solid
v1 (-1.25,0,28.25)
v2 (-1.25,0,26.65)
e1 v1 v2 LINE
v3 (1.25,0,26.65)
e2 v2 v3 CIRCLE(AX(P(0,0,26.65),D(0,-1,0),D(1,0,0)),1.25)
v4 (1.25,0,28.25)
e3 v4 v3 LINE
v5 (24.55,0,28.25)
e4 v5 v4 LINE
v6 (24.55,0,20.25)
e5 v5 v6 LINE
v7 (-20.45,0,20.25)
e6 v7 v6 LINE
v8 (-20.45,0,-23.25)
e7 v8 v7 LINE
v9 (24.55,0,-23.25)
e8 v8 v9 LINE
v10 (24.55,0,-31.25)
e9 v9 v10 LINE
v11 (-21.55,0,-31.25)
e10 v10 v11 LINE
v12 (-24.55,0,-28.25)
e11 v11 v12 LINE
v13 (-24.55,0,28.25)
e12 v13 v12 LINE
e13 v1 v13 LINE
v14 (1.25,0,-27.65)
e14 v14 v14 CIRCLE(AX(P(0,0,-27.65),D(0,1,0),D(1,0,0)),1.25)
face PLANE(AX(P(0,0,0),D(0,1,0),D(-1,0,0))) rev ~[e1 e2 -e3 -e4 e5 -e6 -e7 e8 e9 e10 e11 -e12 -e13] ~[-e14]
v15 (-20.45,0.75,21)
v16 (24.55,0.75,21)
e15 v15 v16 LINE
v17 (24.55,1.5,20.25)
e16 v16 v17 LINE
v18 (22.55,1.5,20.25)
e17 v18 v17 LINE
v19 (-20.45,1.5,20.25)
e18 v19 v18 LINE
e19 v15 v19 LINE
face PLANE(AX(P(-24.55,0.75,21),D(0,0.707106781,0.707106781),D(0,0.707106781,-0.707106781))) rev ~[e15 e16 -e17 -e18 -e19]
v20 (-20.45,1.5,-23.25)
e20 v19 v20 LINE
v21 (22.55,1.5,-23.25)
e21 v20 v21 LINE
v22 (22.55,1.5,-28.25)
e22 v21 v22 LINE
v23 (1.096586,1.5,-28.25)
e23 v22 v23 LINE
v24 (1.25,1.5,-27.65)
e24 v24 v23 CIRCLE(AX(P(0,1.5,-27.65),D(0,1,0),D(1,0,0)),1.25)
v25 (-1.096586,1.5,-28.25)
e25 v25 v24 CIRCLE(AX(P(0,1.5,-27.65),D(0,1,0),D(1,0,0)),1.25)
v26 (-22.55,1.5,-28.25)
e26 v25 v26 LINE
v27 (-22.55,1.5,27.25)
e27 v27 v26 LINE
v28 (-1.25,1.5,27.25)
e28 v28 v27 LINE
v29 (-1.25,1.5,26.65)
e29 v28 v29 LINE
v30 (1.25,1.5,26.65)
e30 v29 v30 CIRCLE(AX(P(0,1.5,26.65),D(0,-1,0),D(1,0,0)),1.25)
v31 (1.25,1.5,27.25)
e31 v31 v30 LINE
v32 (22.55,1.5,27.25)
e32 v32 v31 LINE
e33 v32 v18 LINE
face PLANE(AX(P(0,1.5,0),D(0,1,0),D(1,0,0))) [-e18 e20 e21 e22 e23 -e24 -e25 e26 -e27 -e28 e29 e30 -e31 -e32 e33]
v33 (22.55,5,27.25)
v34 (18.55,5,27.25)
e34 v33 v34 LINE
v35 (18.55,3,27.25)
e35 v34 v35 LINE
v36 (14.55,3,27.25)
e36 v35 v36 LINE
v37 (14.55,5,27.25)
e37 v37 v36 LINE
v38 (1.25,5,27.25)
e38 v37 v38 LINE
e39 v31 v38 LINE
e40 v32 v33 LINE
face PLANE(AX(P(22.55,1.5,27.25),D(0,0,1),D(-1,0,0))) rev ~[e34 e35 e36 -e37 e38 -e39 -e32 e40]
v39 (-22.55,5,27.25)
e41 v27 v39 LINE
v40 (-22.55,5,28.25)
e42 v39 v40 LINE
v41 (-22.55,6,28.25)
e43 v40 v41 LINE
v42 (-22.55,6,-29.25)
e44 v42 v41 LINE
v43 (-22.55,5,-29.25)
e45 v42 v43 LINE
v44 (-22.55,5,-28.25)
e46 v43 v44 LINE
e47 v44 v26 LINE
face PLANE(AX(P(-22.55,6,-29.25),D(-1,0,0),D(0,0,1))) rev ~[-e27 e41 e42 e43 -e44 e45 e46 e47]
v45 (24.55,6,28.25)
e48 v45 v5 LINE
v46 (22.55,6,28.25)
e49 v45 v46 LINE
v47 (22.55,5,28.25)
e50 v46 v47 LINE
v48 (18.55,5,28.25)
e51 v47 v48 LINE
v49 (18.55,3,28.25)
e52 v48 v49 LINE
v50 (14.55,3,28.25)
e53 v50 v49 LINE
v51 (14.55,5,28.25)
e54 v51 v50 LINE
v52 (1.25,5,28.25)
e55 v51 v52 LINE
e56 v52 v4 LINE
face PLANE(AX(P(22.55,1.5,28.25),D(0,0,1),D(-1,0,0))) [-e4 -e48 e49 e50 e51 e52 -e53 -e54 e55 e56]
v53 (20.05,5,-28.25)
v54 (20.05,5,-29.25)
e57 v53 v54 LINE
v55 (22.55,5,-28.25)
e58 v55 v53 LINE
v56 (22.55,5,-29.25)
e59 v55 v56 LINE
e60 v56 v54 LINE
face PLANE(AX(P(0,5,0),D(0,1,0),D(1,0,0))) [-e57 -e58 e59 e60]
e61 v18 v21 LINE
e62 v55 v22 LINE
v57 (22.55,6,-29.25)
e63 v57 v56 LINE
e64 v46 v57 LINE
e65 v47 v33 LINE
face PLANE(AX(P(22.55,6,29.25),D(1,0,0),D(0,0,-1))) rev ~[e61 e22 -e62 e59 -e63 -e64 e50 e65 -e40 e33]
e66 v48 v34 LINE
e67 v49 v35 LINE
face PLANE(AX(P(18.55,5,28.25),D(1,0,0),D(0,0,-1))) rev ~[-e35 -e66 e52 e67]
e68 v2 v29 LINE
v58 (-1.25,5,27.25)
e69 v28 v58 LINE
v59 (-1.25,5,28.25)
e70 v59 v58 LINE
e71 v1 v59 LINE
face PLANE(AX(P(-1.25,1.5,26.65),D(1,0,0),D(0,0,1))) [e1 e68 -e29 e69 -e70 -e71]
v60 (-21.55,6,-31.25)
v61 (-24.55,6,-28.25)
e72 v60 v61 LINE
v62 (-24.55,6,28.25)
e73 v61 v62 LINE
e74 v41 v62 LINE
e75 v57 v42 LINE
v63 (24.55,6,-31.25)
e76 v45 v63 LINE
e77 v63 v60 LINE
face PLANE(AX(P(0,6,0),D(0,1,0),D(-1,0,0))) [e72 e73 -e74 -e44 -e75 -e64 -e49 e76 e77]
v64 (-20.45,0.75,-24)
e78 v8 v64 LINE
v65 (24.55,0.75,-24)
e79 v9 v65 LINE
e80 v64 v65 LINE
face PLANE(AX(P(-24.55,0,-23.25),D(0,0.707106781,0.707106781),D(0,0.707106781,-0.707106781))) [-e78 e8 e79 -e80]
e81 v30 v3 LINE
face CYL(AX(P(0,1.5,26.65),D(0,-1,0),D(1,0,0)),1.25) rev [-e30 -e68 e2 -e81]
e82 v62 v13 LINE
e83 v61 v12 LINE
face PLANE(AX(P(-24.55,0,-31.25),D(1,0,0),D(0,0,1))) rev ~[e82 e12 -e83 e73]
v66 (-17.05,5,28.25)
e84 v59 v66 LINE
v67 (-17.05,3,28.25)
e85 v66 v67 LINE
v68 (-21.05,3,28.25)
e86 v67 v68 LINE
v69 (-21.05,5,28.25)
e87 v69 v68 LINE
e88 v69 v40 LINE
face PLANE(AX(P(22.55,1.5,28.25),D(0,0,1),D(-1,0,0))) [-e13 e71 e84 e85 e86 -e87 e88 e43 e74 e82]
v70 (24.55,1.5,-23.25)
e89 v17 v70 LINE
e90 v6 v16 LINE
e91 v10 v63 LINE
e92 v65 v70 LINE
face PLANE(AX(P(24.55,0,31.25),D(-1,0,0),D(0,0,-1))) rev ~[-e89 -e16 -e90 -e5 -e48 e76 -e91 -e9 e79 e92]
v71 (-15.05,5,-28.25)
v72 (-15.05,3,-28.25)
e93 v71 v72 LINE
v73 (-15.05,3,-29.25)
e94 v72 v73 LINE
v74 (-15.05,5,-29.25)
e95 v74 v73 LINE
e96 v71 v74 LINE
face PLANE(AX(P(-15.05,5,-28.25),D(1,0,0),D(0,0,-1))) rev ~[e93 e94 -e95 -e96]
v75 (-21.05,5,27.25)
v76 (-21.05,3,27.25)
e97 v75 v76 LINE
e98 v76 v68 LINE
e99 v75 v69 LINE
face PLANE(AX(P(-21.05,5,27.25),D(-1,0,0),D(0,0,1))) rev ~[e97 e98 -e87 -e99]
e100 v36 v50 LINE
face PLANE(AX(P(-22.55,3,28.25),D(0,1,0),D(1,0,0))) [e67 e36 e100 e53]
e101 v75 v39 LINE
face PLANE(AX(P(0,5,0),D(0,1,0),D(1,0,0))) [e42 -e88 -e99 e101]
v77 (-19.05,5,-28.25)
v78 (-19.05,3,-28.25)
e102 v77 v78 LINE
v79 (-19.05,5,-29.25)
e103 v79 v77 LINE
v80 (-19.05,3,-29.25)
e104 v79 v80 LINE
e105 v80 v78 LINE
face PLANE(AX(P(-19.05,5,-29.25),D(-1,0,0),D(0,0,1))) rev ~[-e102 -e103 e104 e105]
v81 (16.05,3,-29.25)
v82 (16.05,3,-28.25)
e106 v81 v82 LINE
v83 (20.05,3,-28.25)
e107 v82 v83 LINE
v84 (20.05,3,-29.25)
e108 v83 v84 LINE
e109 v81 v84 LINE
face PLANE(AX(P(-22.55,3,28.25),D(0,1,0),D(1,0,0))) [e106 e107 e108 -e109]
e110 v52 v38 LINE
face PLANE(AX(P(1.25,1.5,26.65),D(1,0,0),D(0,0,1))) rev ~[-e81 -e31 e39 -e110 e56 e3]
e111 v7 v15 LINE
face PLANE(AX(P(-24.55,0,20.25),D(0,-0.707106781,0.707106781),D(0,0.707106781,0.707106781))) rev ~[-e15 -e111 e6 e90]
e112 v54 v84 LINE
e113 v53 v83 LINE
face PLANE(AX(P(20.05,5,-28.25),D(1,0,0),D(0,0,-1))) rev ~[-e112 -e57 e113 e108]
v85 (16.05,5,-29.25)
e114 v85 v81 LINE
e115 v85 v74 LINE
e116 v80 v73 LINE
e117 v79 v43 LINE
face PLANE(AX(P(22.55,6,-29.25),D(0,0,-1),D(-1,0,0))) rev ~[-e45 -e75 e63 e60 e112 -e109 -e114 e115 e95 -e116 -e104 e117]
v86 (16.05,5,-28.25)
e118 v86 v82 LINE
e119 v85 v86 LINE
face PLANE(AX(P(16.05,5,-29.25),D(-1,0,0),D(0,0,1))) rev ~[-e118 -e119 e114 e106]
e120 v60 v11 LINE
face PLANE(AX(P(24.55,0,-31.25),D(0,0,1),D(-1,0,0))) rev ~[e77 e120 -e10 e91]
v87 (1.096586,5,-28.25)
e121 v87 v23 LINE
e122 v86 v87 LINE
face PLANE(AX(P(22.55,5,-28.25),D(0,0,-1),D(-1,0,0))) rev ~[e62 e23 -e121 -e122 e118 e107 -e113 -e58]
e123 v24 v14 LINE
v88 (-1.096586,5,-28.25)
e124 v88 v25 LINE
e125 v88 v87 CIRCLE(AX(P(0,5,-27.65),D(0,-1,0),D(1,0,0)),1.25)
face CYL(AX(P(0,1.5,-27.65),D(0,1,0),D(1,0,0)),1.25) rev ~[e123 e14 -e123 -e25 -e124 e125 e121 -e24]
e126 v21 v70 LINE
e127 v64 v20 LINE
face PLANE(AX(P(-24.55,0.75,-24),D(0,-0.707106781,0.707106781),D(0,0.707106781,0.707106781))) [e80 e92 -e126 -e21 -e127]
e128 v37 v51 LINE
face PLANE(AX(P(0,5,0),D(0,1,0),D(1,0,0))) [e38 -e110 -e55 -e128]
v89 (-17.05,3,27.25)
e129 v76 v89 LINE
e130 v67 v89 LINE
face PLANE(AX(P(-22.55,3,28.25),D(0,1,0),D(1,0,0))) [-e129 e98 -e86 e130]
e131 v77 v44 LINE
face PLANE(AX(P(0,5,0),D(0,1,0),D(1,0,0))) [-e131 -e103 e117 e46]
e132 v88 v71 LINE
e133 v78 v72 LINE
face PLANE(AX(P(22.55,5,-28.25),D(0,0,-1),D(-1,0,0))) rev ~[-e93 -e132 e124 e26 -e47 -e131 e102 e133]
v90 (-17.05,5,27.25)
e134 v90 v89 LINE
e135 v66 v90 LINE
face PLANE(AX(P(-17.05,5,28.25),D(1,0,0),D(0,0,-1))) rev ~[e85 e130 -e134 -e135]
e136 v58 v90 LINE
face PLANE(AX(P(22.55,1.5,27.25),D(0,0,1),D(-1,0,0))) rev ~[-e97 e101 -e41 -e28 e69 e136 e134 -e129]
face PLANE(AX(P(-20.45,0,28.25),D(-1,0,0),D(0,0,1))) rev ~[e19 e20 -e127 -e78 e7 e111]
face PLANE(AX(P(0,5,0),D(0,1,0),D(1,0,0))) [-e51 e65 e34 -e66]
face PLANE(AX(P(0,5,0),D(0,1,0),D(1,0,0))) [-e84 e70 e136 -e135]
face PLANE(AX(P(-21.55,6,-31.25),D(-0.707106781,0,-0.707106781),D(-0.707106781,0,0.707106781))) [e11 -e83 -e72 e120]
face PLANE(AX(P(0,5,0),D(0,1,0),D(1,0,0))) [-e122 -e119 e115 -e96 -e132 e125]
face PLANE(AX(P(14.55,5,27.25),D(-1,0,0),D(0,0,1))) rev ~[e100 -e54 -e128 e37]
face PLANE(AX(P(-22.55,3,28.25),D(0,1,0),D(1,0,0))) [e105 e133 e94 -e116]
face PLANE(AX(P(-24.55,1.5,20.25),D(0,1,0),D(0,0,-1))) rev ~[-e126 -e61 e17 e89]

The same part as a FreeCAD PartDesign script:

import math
import FreeCAD as App
import Part
import Sketcher

V = App.Vector
Q = App.Units.Quantity

doc = App.newDocument("Part")
body = doc.addObject("PartDesign::Body", "Body")

# Sketch on XZ plane
sketch1 = body.newObject("Sketcher::SketchObject", "Sketch")
sketch1.AttachmentSupport = (doc.getObject("XZ_Plane"), [""])
sketch1.MapMode = "FlatFace"
sketch1.addGeometry(Part.LineSegment(V(25, 31, 0), V(25, -31, 0)), False)
sketch1.addGeometry(Part.LineSegment(V(25, -31, 0), V(-25, -31, 0)), False)
sketch1.addGeometry(Part.LineSegment(V(-25, -31, 0), V(-25, 31, 0)), False)
sketch1.addGeometry(Part.LineSegment(V(-25, 31, 0), V(25, 31, 0)), False)
sketch1.addConstraint(Sketcher.Constraint("Coincident", 0, 2, 1, 1))
sketch1.addConstraint(Sketcher.Constraint("Coincident", 1, 2, 2, 1))
sketch1.addConstraint(Sketcher.Constraint("Coincident", 2, 2, 3, 1))
sketch1.addConstraint(Sketcher.Constraint("Coincident", 3, 2, 0, 1))
sketch1.addConstraint(Sketcher.Constraint("Vertical", 0))
sketch1.addConstraint(Sketcher.Constraint("Horizontal", 1))
sketch1.addConstraint(Sketcher.Constraint("Vertical", 2))
sketch1.addConstraint(Sketcher.Constraint("Horizontal", 3))
sketch1.addConstraint(Sketcher.Constraint("Symmetric", 0, 2, 2, 2, -1, 1))
sketch1.addConstraint(Sketcher.Constraint("DistanceX", 1, 2, 1, 1, Q("49.1 mm")))
sketch1.addConstraint(Sketcher.Constraint("DistanceY", 0, 2, 0, 1, Q("62.5 mm")))
pad1 = body.newObject("PartDesign::Pad", "Pad")
pad1.Profile = sketch1
pad1.Length = 6
pad1.Reversed = True

# Sketch on XZ plane
sketch2 = body.newObject("Sketcher::SketchObject", "Sketch001")
sketch2.AttachmentSupport = (doc.getObject("XZ_Plane"), [""])
sketch2.MapMode = "FlatFace"
sketch2.AttachmentOffset = App.Placement(V(0, 0, -6), App.Rotation())
sketch2.addGeometry(Part.LineSegment(V(23, 29, 0), V(23, -29, 0)), False)
sketch2.addGeometry(Part.LineSegment(V(23, -29, 0), V(-23, -29, 0)), False)
sketch2.addGeometry(Part.LineSegment(V(-23, -29, 0), V(-23, 29, 0)), False)
sketch2.addGeometry(Part.LineSegment(V(-23, 29, 0), V(23, 29, 0)), False)
sketch2.addConstraint(Sketcher.Constraint("Coincident", 0, 2, 1, 1))
sketch2.addConstraint(Sketcher.Constraint("Coincident", 1, 2, 2, 1))
sketch2.addConstraint(Sketcher.Constraint("Coincident", 2, 2, 3, 1))
sketch2.addConstraint(Sketcher.Constraint("Coincident", 3, 2, 0, 1))
sketch2.addConstraint(Sketcher.Constraint("Vertical", 0))
sketch2.addConstraint(Sketcher.Constraint("Horizontal", 1))
sketch2.addConstraint(Sketcher.Constraint("Vertical", 2))
sketch2.addConstraint(Sketcher.Constraint("Horizontal", 3))
sketch2.addConstraint(Sketcher.Constraint("Symmetric", 0, 2, 2, 2, -1, 1))
sketch2.addConstraint(Sketcher.Constraint("DistanceX", 1, 2, 1, 1, Q("45.1 mm")))
sketch2.addConstraint(Sketcher.Constraint("DistanceY", 0, 2, 0, 1, Q("58.5 mm")))
pocket1 = body.newObject("PartDesign::Pocket", "Pocket")
pocket1.Profile = sketch2
pocket1.Length = 1
pocket1.Reversed = True

# Sketch on XZ plane
sketch3 = body.newObject("Sketcher::SketchObject", "Sketch002")
sketch3.AttachmentSupport = (doc.getObject("XZ_Plane"), [""])
sketch3.MapMode = "FlatFace"
sketch3.AttachmentOffset = App.Placement(V(0, 0, -5), App.Rotation())
sketch3.addGeometry(Part.LineSegment(V(23, 28, 0), V(23, -28, 0)), False)
sketch3.addGeometry(Part.LineSegment(V(23, -28, 0), V(-23, -28, 0)), False)
sketch3.addGeometry(Part.LineSegment(V(-23, -28, 0), V(-23, 28, 0)), False)
sketch3.addGeometry(Part.LineSegment(V(-23, 28, 0), V(23, 28, 0)), False)
sketch3.addConstraint(Sketcher.Constraint("Coincident", 0, 2, 1, 1))
sketch3.addConstraint(Sketcher.Constraint("Coincident", 1, 2, 2, 1))
sketch3.addConstraint(Sketcher.Constraint("Coincident", 2, 2, 3, 1))
sketch3.addConstraint(Sketcher.Constraint("Coincident", 3, 2, 0, 1))
sketch3.addConstraint(Sketcher.Constraint("Vertical", 0))
sketch3.addConstraint(Sketcher.Constraint("Horizontal", 1))
sketch3.addConstraint(Sketcher.Constraint("Vertical", 2))
sketch3.addConstraint(Sketcher.Constraint("Horizontal", 3))
sketch3.addConstraint(Sketcher.Constraint("Symmetric", 0, 2, 2, 2, -1, 1))
sketch3.addConstraint(Sketcher.Constraint("DistanceX", 1, 2, 1, 1, Q("45.1 mm")))
sketch3.addConstraint(Sketcher.Constraint("DistanceY", 0, 2, 0, 1, Q("56.5 mm")))
pocket2 = body.newObject("PartDesign::Pocket", "Pocket001")
pocket2.Profile = sketch3
pocket2.Length = 3.5
pocket2.Reversed = True

# Sketch on XZ plane
sketch4 = body.newObject("Sketcher::SketchObject", "Sketch003")
sketch4.AttachmentSupport = (doc.getObject("XZ_Plane"), [""])
sketch4.MapMode = "FlatFace"
sketch4.AttachmentOffset = App.Placement(V(0, 0, -6), App.Rotation())
sketch4.addGeometry(Part.LineSegment(V(24.6, 31.2, 0), V(24.6, 28.2, 0)), False)
sketch4.addGeometry(Part.LineSegment(V(24.6, 28.2, 0), V(-24.6, 28.2, 0)), False)
sketch4.addGeometry(Part.LineSegment(V(-24.6, 28.2, 0), V(-24.6, 31.2, 0)), False)
sketch4.addGeometry(Part.LineSegment(V(-24.6, 31.2, 0), V(24.6, 31.2, 0)), False)
sketch4.addConstraint(Sketcher.Constraint("Coincident", 0, 2, 1, 1))
sketch4.addConstraint(Sketcher.Constraint("Coincident", 1, 2, 2, 1))
sketch4.addConstraint(Sketcher.Constraint("Coincident", 2, 2, 3, 1))
sketch4.addConstraint(Sketcher.Constraint("Coincident", 3, 2, 0, 1))
sketch4.addConstraint(Sketcher.Constraint("Vertical", 0))
sketch4.addConstraint(Sketcher.Constraint("Horizontal", 1))
sketch4.addConstraint(Sketcher.Constraint("Vertical", 2))
sketch4.addConstraint(Sketcher.Constraint("Horizontal", 3))
sketch4.addConstraint(Sketcher.Constraint("DistanceY", 0, 2, 0, 1, Q("3 mm")))
sketch4.addConstraint(Sketcher.Constraint("DistanceX", 1, 2, 1, 1, Q("49.1 mm")))
sketch4.addConstraint(Sketcher.Constraint("DistanceX", -1, 1, 0, 2, Q("24.55 mm")))
sketch4.addConstraint(Sketcher.Constraint("DistanceY", -1, 1, 0, 2, Q("28.25 mm")))
pocket3 = body.newObject("PartDesign::Pocket", "Pocket002")
pocket3.Profile = sketch4
pocket3.Type = "ThroughAll"
pocket3.Reversed = True

# Sketch on XZ plane
sketch5 = body.newObject("Sketcher::SketchObject", "Sketch004")
sketch5.AttachmentSupport = (doc.getObject("XZ_Plane"), [""])
sketch5.MapMode = "FlatFace"
sketch5.AttachmentOffset = App.Placement(V(0, 0, -1.5), App.Rotation())
sketch5.addGeometry(Part.LineSegment(V(-22.6, 28.2, 0), V(22.6, 28.2, 0)), False)
sketch5.addGeometry(Part.LineSegment(V(22.6, 28.2, 0), V(22.6, 27.2, 0)), False)
sketch5.addGeometry(Part.LineSegment(V(22.6, 27.2, 0), V(-22.6, 27.2, 0)), False)
sketch5.addGeometry(Part.LineSegment(V(-22.6, 27.2, 0), V(-22.6, 28.2, 0)), False)
sketch5.addConstraint(Sketcher.Constraint("Coincident", 0, 2, 1, 1))
sketch5.addConstraint(Sketcher.Constraint("Coincident", 1, 2, 2, 1))
sketch5.addConstraint(Sketcher.Constraint("Coincident", 2, 2, 3, 1))
sketch5.addConstraint(Sketcher.Constraint("Coincident", 3, 2, 0, 1))
sketch5.addConstraint(Sketcher.Constraint("Horizontal", 0))
sketch5.addConstraint(Sketcher.Constraint("Vertical", 1))
sketch5.addConstraint(Sketcher.Constraint("Horizontal", 2))
sketch5.addConstraint(Sketcher.Constraint("Vertical", 3))
sketch5.addConstraint(Sketcher.Constraint("DistanceY", 1, 2, 1, 1, Q("1 mm")))
sketch5.addConstraint(Sketcher.Constraint("DistanceX", 0, 1, 0, 2, Q("45.1 mm")))
sketch5.addConstraint(Sketcher.Constraint("DistanceX", -1, 1, 0, 2, Q("22.55 mm")))
sketch5.addConstraint(Sketcher.Constraint("DistanceY", -1, 1, 0, 2, Q("28.25 mm")))
pad2 = body.newObject("PartDesign::Pad", "Pad001")
pad2.Profile = sketch5
pad2.Length = 3.5
pad2.Reversed = True

# Sketch on XZ plane
sketch6 = body.newObject("Sketcher::SketchObject", "Sketch005")
sketch6.AttachmentSupport = (doc.getObject("XZ_Plane"), [""])
sketch6.MapMode = "FlatFace"
sketch6.AttachmentOffset = App.Placement(V(0, 0, -1.5), App.Rotation())
sketch6.addGeometry(Part.Circle(V(0, -27.6, 0), V(0, 0, 1), 1.2), False)
sketch6.addGeometry(Part.ArcOfCircle(Part.Circle(V(0, 26.6, 0), V(0, 0, 1), 1.2), math.radians(180), math.radians(360)), False)
sketch6.addGeometry(Part.LineSegment(V(-1.2, 26.6, 0), V(-1.2, 28.2, 0)), False)
sketch6.addGeometry(Part.LineSegment(V(-1.2, 28.2, 0), V(1.2, 28.2, 0)), False)
sketch6.addGeometry(Part.LineSegment(V(1.2, 28.2, 0), V(1.2, 26.6, 0)), False)
sketch6.addConstraint(Sketcher.Constraint("Tangent", 1, 1, 2, 1))
sketch6.addConstraint(Sketcher.Constraint("Coincident", 2, 2, 3, 1))
sketch6.addConstraint(Sketcher.Constraint("Coincident", 3, 2, 4, 1))
sketch6.addConstraint(Sketcher.Constraint("Tangent", 4, 2, 1, 2))
sketch6.addConstraint(Sketcher.Constraint("Vertical", 2))
sketch6.addConstraint(Sketcher.Constraint("Horizontal", 3))
sketch6.addConstraint(Sketcher.Constraint("Vertical", 4))
sketch6.addConstraint(Sketcher.Constraint("Equal", 0, 1))
sketch6.addConstraint(Sketcher.Constraint("PointOnObject", 0, 3, -2))
sketch6.addConstraint(Sketcher.Constraint("PointOnObject", 1, 3, -2))
sketch6.addConstraint(Sketcher.Constraint("Diameter", 0, Q("2.5 mm")))
sketch6.addConstraint(Sketcher.Constraint("DistanceY", 0, 3, 1, 3, Q("54.3 mm")))
sketch6.addConstraint(Sketcher.Constraint("DistanceY", 0, 3, -1, 1, Q("27.65 mm")))
sketch6.addConstraint(Sketcher.Constraint("DistanceY", 2, 1, 2, 2, Q("1.6 mm")))
pocket4 = body.newObject("PartDesign::Pocket", "Pocket003")
pocket4.Profile = sketch6
pocket4.Type = "ThroughAll"
pocket4.Midplane = True

# Sketch on XZ plane
sketch7 = body.newObject("Sketcher::SketchObject", "Sketch006")
sketch7.AttachmentSupport = (doc.getObject("XZ_Plane"), [""])
sketch7.MapMode = "FlatFace"
sketch7.AttachmentOffset = App.Placement(V(0, 0, -6), App.Rotation())
sketch7.addGeometry(Part.LineSegment(V(-24.6, -28.2, 0), V(-21.6, -31.2, 0)), False)
sketch7.addGeometry(Part.LineSegment(V(-21.6, -31.2, 0), V(-24.6, -31.2, 0)), False)
sketch7.addGeometry(Part.LineSegment(V(-24.6, -31.2, 0), V(-24.6, -28.2, 0)), False)
sketch7.addConstraint(Sketcher.Constraint("Coincident", 0, 2, 1, 1))
sketch7.addConstraint(Sketcher.Constraint("Coincident", 1, 2, 2, 1))
sketch7.addConstraint(Sketcher.Constraint("Coincident", 2, 2, 0, 1))
sketch7.addConstraint(Sketcher.Constraint("Horizontal", 1))
sketch7.addConstraint(Sketcher.Constraint("Vertical", 2))
sketch7.addConstraint(Sketcher.Constraint("Equal", 1, 2))
sketch7.addConstraint(Sketcher.Constraint("DistanceX", 1, 2, 1, 1, Q("3 mm")))
sketch7.addConstraint(Sketcher.Constraint("DistanceX", 0, 2, -1, 1, Q("21.55 mm")))
sketch7.addConstraint(Sketcher.Constraint("DistanceY", 0, 2, -1, 1, Q("31.25 mm")))
pocket5 = body.newObject("PartDesign::Pocket", "Pocket004")
pocket5.Profile = sketch7
pocket5.Length = 10
pocket5.Reversed = True

# Sketch on XZ plane
sketch8 = body.newObject("Sketcher::SketchObject", "Sketch007")
sketch8.AttachmentSupport = (doc.getObject("XZ_Plane"), [""])
sketch8.MapMode = "FlatFace"
sketch8.AttachmentOffset = App.Placement(V(0, 0, -5), App.Rotation())
sketch8.addGeometry(Part.LineSegment(V(20.1, -29.2, 0), V(16.1, -29.2, 0)), False)
sketch8.addGeometry(Part.LineSegment(V(16.1, -29.2, 0), V(16.1, -28.2, 0)), False)
sketch8.addGeometry(Part.LineSegment(V(16.1, -28.2, 0), V(20.1, -28.2, 0)), False)
sketch8.addGeometry(Part.LineSegment(V(20.1, -28.2, 0), V(20.1, -29.2, 0)), False)
sketch8.addGeometry(Part.LineSegment(V(-21.1, 28.2, 0), V(-17.1, 28.2, 0)), False)
sketch8.addGeometry(Part.LineSegment(V(-17.1, 28.2, 0), V(-17.1, 27.2, 0)), False)
sketch8.addGeometry(Part.LineSegment(V(-17.1, 27.2, 0), V(-21.1, 27.2, 0)), False)
sketch8.addGeometry(Part.LineSegment(V(-21.1, 27.2, 0), V(-21.1, 28.2, 0)), False)
sketch8.addGeometry(Part.LineSegment(V(-19.1, -29.2, 0), V(-19.1, -28.2, 0)), False)
sketch8.addGeometry(Part.LineSegment(V(-19.1, -28.2, 0), V(-15.1, -28.2, 0)), False)
sketch8.addGeometry(Part.LineSegment(V(-15.1, -28.2, 0), V(-15.1, -29.2, 0)), False)
sketch8.addGeometry(Part.LineSegment(V(-15.1, -29.2, 0), V(-19.1, -29.2, 0)), False)
sketch8.addGeometry(Part.LineSegment(V(14.6, 27.2, 0), V(14.6, 28.2, 0)), False)
sketch8.addGeometry(Part.LineSegment(V(14.6, 28.2, 0), V(18.6, 28.2, 0)), False)
sketch8.addGeometry(Part.LineSegment(V(18.6, 28.2, 0), V(18.6, 27.2, 0)), False)
sketch8.addGeometry(Part.LineSegment(V(18.6, 27.2, 0), V(14.6, 27.2, 0)), False)
sketch8.addConstraint(Sketcher.Constraint("Coincident", 0, 2, 1, 1))
sketch8.addConstraint(Sketcher.Constraint("Coincident", 1, 2, 2, 1))
sketch8.addConstraint(Sketcher.Constraint("Coincident", 2, 2, 3, 1))
sketch8.addConstraint(Sketcher.Constraint("Coincident", 3, 2, 0, 1))
sketch8.addConstraint(Sketcher.Constraint("Coincident", 4, 2, 5, 1))
sketch8.addConstraint(Sketcher.Constraint("Coincident", 5, 2, 6, 1))
sketch8.addConstraint(Sketcher.Constraint("Coincident", 6, 2, 7, 1))
sketch8.addConstraint(Sketcher.Constraint("Coincident", 7, 2, 4, 1))
sketch8.addConstraint(Sketcher.Constraint("Coincident", 8, 2, 9, 1))
sketch8.addConstraint(Sketcher.Constraint("Coincident", 9, 2, 10, 1))
sketch8.addConstraint(Sketcher.Constraint("Coincident", 10, 2, 11, 1))
sketch8.addConstraint(Sketcher.Constraint("Coincident", 11, 2, 8, 1))
sketch8.addConstraint(Sketcher.Constraint("Coincident", 12, 2, 13, 1))
sketch8.addConstraint(Sketcher.Constraint("Coincident", 13, 2, 14, 1))
sketch8.addConstraint(Sketcher.Constraint("Coincident", 14, 2, 15, 1))
sketch8.addConstraint(Sketcher.Constraint("Coincident", 15, 2, 12, 1))
sketch8.addConstraint(Sketcher.Constraint("Horizontal", 0))
sketch8.addConstraint(Sketcher.Constraint("Vertical", 1))
sketch8.addConstraint(Sketcher.Constraint("Horizontal", 2))
sketch8.addConstraint(Sketcher.Constraint("Vertical", 3))
sketch8.addConstraint(Sketcher.Constraint("Horizontal", 4))
sketch8.addConstraint(Sketcher.Constraint("Vertical", 5))
sketch8.addConstraint(Sketcher.Constraint("Horizontal", 6))
sketch8.addConstraint(Sketcher.Constraint("Vertical", 7))
sketch8.addConstraint(Sketcher.Constraint("Vertical", 8))
sketch8.addConstraint(Sketcher.Constraint("Horizontal", 9))
sketch8.addConstraint(Sketcher.Constraint("Vertical", 10))
sketch8.addConstraint(Sketcher.Constraint("Horizontal", 11))
sketch8.addConstraint(Sketcher.Constraint("Vertical", 12))
sketch8.addConstraint(Sketcher.Constraint("Horizontal", 13))
sketch8.addConstraint(Sketcher.Constraint("Vertical", 14))
sketch8.addConstraint(Sketcher.Constraint("Horizontal", 15))
sketch8.addConstraint(Sketcher.Constraint("Horizontal", 2, 2, 8, 2))
sketch8.addConstraint(Sketcher.Constraint("Horizontal", 3, 2, 10, 2))
sketch8.addConstraint(Sketcher.Constraint("Horizontal", 7, 2, 12, 2))
sketch8.addConstraint(Sketcher.Constraint("Horizontal", 6, 2, 14, 2))
sketch8.addConstraint(Sketcher.Constraint("Equal", 2, 4))
sketch8.addConstraint(Sketcher.Constraint("Equal", 6, 9))
sketch8.addConstraint(Sketcher.Constraint("Equal", 11, 13))
sketch8.addConstraint(Sketcher.Constraint("Equal", 3, 5))
sketch8.addConstraint(Sketcher.Constraint("DistanceX", 0, 2, 0, 1, Q("4 mm")))
sketch8.addConstraint(Sketcher.Constraint("DistanceX", 12, 2, 1, 2, Q("1.5 mm")))
sketch8.addConstraint(Sketcher.Constraint("DistanceY", 1, 1, 1, 2, Q("1 mm")))
sketch8.addConstraint(Sketcher.Constraint("DistanceX", 8, 2, 5, 2, Q("2 mm")))
sketch8.addConstraint(Sketcher.Constraint("DistanceX", 4, 2, 1, 2, Q("33.1 mm")))
sketch8.addConstraint(Sketcher.Constraint("DistanceY", 1, 2, 4, 2, Q("56.5 mm")))
sketch8.addConstraint(Sketcher.Constraint("DistanceX", -1, 1, 0, 2, Q("16.05 mm")))
sketch8.addConstraint(Sketcher.Constraint("DistanceY", 0, 2, -1, 1, Q("29.25 mm")))
pocket6 = body.newObject("PartDesign::Pocket", "Pocket005")
pocket6.Profile = sketch8
pocket6.Length = 2
pocket6.Reversed = True

# Sketch on YZ plane
sketch9 = body.newObject("Sketcher::SketchObject", "Sketch008")
sketch9.AttachmentSupport = (doc.getObject("YZ_Plane"), [""])
sketch9.MapMode = "FlatFace"
sketch9.AttachmentOffset = App.Placement(V(0, 0, -24.55), App.Rotation())
sketch9.addGeometry(Part.LineSegment(V(1.5, 20.2, 0), V(1.5, -23.2, 0)), False)
sketch9.addGeometry(Part.LineSegment(V(1.5, -23.2, 0), V(0.8, -24, 0)), False)
sketch9.addGeometry(Part.LineSegment(V(0.8, -24, 0), V(0, -23.2, 0)), False)
sketch9.addGeometry(Part.LineSegment(V(0, -23.2, 0), V(0, 20.2, 0)), False)
sketch9.addGeometry(Part.LineSegment(V(0, 20.2, 0), V(0.8, 21, 0)), False)
sketch9.addGeometry(Part.LineSegment(V(0.8, 21, 0), V(1.5, 20.2, 0)), False)
sketch9.addConstraint(Sketcher.Constraint("Coincident", 0, 2, 1, 1))
sketch9.addConstraint(Sketcher.Constraint("Coincident", 1, 2, 2, 1))
sketch9.addConstraint(Sketcher.Constraint("Coincident", 2, 2, 3, 1))
sketch9.addConstraint(Sketcher.Constraint("Coincident", 3, 2, 4, 1))
sketch9.addConstraint(Sketcher.Constraint("Coincident", 4, 2, 5, 1))
sketch9.addConstraint(Sketcher.Constraint("Coincident", 5, 2, 0, 1))
sketch9.addConstraint(Sketcher.Constraint("Vertical", 0))
sketch9.addConstraint(Sketcher.Constraint("Vertical", 3))
sketch9.addConstraint(Sketcher.Constraint("PointOnObject", 2, 2, -2))
sketch9.addConstraint(Sketcher.Constraint("Perpendicular", 1, 2))
sketch9.addConstraint(Sketcher.Constraint("Perpendicular", 2, 4))
sketch9.addConstraint(Sketcher.Constraint("Perpendicular", 4, 5))
sketch9.addConstraint(Sketcher.Constraint("Horizontal", 0, 2, 2, 2))
sketch9.addConstraint(Sketcher.Constraint("Horizontal", 3, 2, 5, 2))
sketch9.addConstraint(Sketcher.Constraint("Vertical", 1, 2, 4, 2))
sketch9.addConstraint(Sketcher.Constraint("DistanceY", 1, 2, 4, 2, Q("45 mm")))
sketch9.addConstraint(Sketcher.Constraint("DistanceY", 0, 2, 0, 1, Q("43.5 mm")))
sketch9.addConstraint(Sketcher.Constraint("DistanceY", 1, 2, -1, 1, Q("24 mm")))
pocket7 = body.newObject("PartDesign::Pocket", "Pocket006")
pocket7.Profile = sketch9
pocket7.Type = "ThroughAll"
pocket7.Reversed = True

# Sketch on YZ plane
sketch10 = body.newObject("Sketcher::SketchObject", "Sketch009")
sketch10.AttachmentSupport = (doc.getObject("YZ_Plane"), [""])
sketch10.MapMode = "FlatFace"
sketch10.AttachmentOffset = App.Placement(V(0, 0, -24.55), App.Rotation())
sketch10.addGeometry(Part.LineSegment(V(1.5, 20.2, 0), V(1.5, -23.2, 0)), False)
sketch10.addGeometry(Part.LineSegment(V(1.5, -23.2, 0), V(0.8, -24, 0)), False)
sketch10.addGeometry(Part.LineSegment(V(0.8, -24, 0), V(0, -23.2, 0)), False)
sketch10.addGeometry(Part.LineSegment(V(0, -23.2, 0), V(0, 20.2, 0)), False)
sketch10.addGeometry(Part.LineSegment(V(0, 20.2, 0), V(0.8, 21, 0)), False)
sketch10.addGeometry(Part.LineSegment(V(0.8, 21, 0), V(1.5, 20.2, 0)), False)
sketch10.addConstraint(Sketcher.Constraint("Coincident", 0, 2, 1, 1))
sketch10.addConstraint(Sketcher.Constraint("Coincident", 1, 2, 2, 1))
sketch10.addConstraint(Sketcher.Constraint("Coincident", 2, 2, 3, 1))
sketch10.addConstraint(Sketcher.Constraint("Coincident", 3, 2, 4, 1))
sketch10.addConstraint(Sketcher.Constraint("Coincident", 4, 2, 5, 1))
sketch10.addConstraint(Sketcher.Constraint("Coincident", 5, 2, 0, 1))
sketch10.addConstraint(Sketcher.Constraint("Vertical", 0))
sketch10.addConstraint(Sketcher.Constraint("Vertical", 3))
sketch10.addConstraint(Sketcher.Constraint("PointOnObject", 2, 2, -2))
sketch10.addConstraint(Sketcher.Constraint("Perpendicular", 1, 2))
sketch10.addConstraint(Sketcher.Constraint("Perpendicular", 2, 4))
sketch10.addConstraint(Sketcher.Constraint("Perpendicular", 4, 5))
sketch10.addConstraint(Sketcher.Constraint("Horizontal", 0, 2, 2, 2))
sketch10.addConstraint(Sketcher.Constraint("Horizontal", 3, 2, 5, 2))
sketch10.addConstraint(Sketcher.Constraint("Vertical", 1, 2, 4, 2))
sketch10.addConstraint(Sketcher.Constraint("DistanceY", 1, 2, 4, 2, Q("45 mm")))
sketch10.addConstraint(Sketcher.Constraint("DistanceY", 0, 2, 0, 1, Q("43.5 mm")))
sketch10.addConstraint(Sketcher.Constraint("DistanceY", 1, 2, -1, 1, Q("24 mm")))
pad3 = body.newObject("PartDesign::Pad", "Pad002")
pad3.Profile = sketch10
pad3.Length = 4.1

doc.recompute()
